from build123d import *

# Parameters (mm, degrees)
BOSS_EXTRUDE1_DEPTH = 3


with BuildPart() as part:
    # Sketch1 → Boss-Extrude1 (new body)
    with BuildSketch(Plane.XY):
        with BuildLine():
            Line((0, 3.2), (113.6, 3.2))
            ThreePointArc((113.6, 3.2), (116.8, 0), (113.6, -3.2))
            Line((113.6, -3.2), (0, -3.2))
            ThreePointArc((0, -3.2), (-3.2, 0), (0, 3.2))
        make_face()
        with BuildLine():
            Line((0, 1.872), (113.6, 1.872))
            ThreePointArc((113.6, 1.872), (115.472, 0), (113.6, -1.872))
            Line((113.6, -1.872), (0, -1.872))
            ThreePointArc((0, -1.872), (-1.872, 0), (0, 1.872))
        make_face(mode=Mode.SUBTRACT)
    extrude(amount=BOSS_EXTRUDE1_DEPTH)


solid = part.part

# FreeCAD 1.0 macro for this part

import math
import FreeCAD as App
import Part
import Sketcher
from FreeCAD import Vector

doc = App.newDocument("Part")
params = doc.addObject("Spreadsheet::Sheet", "Params")
for row, (alias, value) in enumerate([
    ("sketch1_radius", "3.2 mm"),
    ("sketch1_width", "113.6 mm"),
    ("pad1_length", "3 mm"),
], start=1):
    params.set(f"A{row}", alias)
    params.set(f"B{row}", "=" + value)
    params.setAlias(f"B{row}", alias)

body = doc.addObject("PartDesign::Body", "Body")

# Sketch on XY plane
sketch1 = body.newObject("Sketcher::SketchObject", "Sketch")
sketch1.AttachmentSupport = (doc.getObject("XY_Plane"), [""])
sketch1.MapMode = "FlatFace"
sketch1.addGeometry([
    Part.LineSegment(Vector(113.6, 3.2, 0), Vector(0, 3.2, 0)),  # 0
    Part.ArcOfCircle(Part.Circle(Vector(0, 0, 0), Vector(0, 0, 1), 3.2), math.radians(90), math.radians(270)),  # 1
    Part.LineSegment(Vector(0, -3.2, 0), Vector(113.6, -3.2, 0)),  # 2
    Part.ArcOfCircle(Part.Circle(Vector(113.6, 0, 0), Vector(0, 0, 1), 3.2), math.radians(-90), math.radians(90)),  # 3
    Part.LineSegment(Vector(0, 1.872, 0), Vector(113.6, 1.872, 0)),  # 4
    Part.ArcOfCircle(Part.Circle(Vector(113.6, 0, 0), Vector(0, 0, 1), 1.872), math.radians(-90), math.radians(90)),  # 5
    Part.LineSegment(Vector(113.6, -1.872, 0), Vector(0, -1.872, 0)),  # 6
    Part.ArcOfCircle(Part.Circle(Vector(0, 0, 0), Vector(0, 0, 1), 1.872), math.radians(90), math.radians(270)),  # 7
], False)
sketch1.addConstraint([
    Sketcher.Constraint("Tangent", 0, 2, 1, 1),
    Sketcher.Constraint("Tangent", 1, 2, 2, 1),
    Sketcher.Constraint("Tangent", 2, 2, 3, 1),
    Sketcher.Constraint("Tangent", 3, 2, 0, 1),
    Sketcher.Constraint("Tangent", 4, 2, 5, 2),
    Sketcher.Constraint("Tangent", 5, 1, 6, 1),
    Sketcher.Constraint("Tangent", 6, 2, 7, 2),
    Sketcher.Constraint("Tangent", 7, 1, 4, 1),
    Sketcher.Constraint("Horizontal", 0),
    Sketcher.Constraint("Horizontal", 2),
    Sketcher.Constraint("Horizontal", 4),
    Sketcher.Constraint("Horizontal", 6),
    Sketcher.Constraint("Coincident", 1, 3, -1, 1),
    Sketcher.Constraint("Coincident", 7, 3, -1, 1),
    Sketcher.Constraint("Vertical", 5, 3, 2, 2),
    Sketcher.Constraint("Radius", 1, 3.2),
    Sketcher.Constraint("DistanceX", 0, 2, 0, 1, 113.6),
    Sketcher.Constraint("Radius", 5, 1.872),
])
sketch1.setExpression("Constraints[15]", "Params.sketch1_radius")
sketch1.setExpression("Constraints[16]", "Params.sketch1_width")
pad1 = body.newObject("PartDesign::Pad", "Pad")
pad1.Profile = sketch1
pad1.setExpression("Length", "Params.pad1_length")

doc.recompute()
